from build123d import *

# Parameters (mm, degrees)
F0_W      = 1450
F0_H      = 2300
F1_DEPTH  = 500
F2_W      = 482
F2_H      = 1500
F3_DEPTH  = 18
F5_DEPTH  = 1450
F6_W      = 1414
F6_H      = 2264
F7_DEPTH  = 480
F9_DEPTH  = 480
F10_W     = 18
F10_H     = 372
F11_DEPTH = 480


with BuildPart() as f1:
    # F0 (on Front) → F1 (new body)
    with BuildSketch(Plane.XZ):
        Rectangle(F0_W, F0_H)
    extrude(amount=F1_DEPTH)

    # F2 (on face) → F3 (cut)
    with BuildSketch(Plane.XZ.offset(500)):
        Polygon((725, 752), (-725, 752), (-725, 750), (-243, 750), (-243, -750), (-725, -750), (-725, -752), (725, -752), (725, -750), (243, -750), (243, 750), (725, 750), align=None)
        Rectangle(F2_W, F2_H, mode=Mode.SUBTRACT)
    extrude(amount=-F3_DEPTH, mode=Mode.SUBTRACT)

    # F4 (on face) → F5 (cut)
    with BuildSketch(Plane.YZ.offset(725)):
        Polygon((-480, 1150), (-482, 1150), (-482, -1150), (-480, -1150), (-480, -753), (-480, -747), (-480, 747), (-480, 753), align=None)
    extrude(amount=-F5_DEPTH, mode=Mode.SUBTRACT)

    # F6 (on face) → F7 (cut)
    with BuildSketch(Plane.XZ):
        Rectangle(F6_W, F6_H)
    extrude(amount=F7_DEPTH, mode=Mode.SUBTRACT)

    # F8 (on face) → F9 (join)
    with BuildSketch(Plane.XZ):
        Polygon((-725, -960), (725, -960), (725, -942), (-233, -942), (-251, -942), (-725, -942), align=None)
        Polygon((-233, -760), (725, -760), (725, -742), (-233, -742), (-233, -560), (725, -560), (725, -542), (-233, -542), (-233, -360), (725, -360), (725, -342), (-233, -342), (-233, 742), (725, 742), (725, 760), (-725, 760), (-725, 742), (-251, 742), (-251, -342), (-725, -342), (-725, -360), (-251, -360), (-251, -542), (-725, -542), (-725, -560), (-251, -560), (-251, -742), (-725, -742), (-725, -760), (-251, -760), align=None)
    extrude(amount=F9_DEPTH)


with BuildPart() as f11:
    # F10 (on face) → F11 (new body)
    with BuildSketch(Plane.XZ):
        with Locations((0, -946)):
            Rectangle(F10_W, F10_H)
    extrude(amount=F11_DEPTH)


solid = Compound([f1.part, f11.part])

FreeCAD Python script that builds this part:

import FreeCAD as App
import Part
import Sketcher
from FreeCAD import Vector

doc = App.newDocument("Part")
params = doc.addObject("Spreadsheet::Sheet", "Params")
for row, (alias, value) in enumerate([
    ("sketch1_width", "1450 mm"),
    ("sketch1_height", "2300 mm"),
    ("pad1_length", "500 mm"),
    ("sketch2_width", "1450 mm"),
    ("sketch2_width2", "482 mm"),
    ("sketch2_height", "2 mm"),
    ("sketch2_height2", "1500 mm"),
    ("pocket1_length", "18 mm"),
    ("sketch3_width", "2 mm"),
    ("sketch3_height", "2300 mm"),
    ("pocket2_length", "1450 mm"),
    ("sketch4_width", "1414 mm"),
    ("sketch4_height", "2264 mm"),
    ("pocket3_length", "480 mm"),
    ("sketch5_width", "1450 mm"),
    ("sketch5_width2", "958 mm"),
    ("sketch5_width3", "474 mm"),
    ("sketch5_height", "18 mm"),
    ("sketch5_height2", "182 mm"),
    ("pad2_length", "480 mm"),
    ("sketch6_width", "18 mm"),
    ("sketch6_height", "372 mm"),
    ("pad3_length", "480 mm"),
], start=1):
    params.set(f"A{row}", alias)
    params.set(f"B{row}", "=" + value)
    params.setAlias(f"B{row}", alias)

body = doc.addObject("PartDesign::Body", "Body")
body.AllowCompound = True

# Sketch on XZ plane
sketch1 = body.newObject("Sketcher::SketchObject", "Sketch")
sketch1.AttachmentSupport = (doc.getObject("XZ_Plane"), [""])
sketch1.MapMode = "FlatFace"
sketch1.addGeometry([
    Part.LineSegment(Vector(-725, 1150, 0), Vector(-725, -1150, 0)),
    Part.LineSegment(Vector(-725, -1150, 0), Vector(725, -1150, 0)),
    Part.LineSegment(Vector(725, -1150, 0), Vector(725, 1150, 0)),
    Part.LineSegment(Vector(725, 1150, 0), Vector(-725, 1150, 0)),
], False)
sketch1.addConstraint([
    Sketcher.Constraint("Coincident", 0, 2, 1, 1),
    Sketcher.Constraint("Coincident", 1, 2, 2, 1),
    Sketcher.Constraint("Coincident", 2, 2, 3, 1),
    Sketcher.Constraint("Coincident", 3, 2, 0, 1),
    Sketcher.Constraint("Vertical", 0),
    Sketcher.Constraint("Horizontal", 1),
    Sketcher.Constraint("Vertical", 2),
    Sketcher.Constraint("Horizontal", 3),
    Sketcher.Constraint("Symmetric", 0, 2, 2, 2, -1, 1),
    Sketcher.Constraint("DistanceX", 1, 1, 1, 2, 1450.0),
    Sketcher.Constraint("DistanceY", 0, 2, 0, 1, 2300.0),
])
sketch1.setExpression("Constraints[9]", "Params.sketch1_width")
sketch1.setExpression("Constraints[10]", "Params.sketch1_height")
pad1 = body.newObject("PartDesign::Pad", "Pad")
pad1.Profile = sketch1
pad1.setExpression("Length", "Params.pad1_length")

# Sketch on XZ plane
sketch2 = body.newObject("Sketcher::SketchObject", "Sketch001")
sketch2.AttachmentSupport = (doc.getObject("XZ_Plane"), [""])
sketch2.MapMode = "FlatFace"
sketch2.AttachmentOffset = App.Placement(Vector(0, 0, 500), App.Rotation())
sketch2.addGeometry([
    Part.LineSegment(Vector(725, 752, 0), Vector(-725, 752, 0)),  # 0
    Part.LineSegment(Vector(-725, 752, 0), Vector(-725, 750, 0)),  # 1
    Part.LineSegment(Vector(-725, 750, 0), Vector(-243, 750, 0)),  # 2
    Part.LineSegment(Vector(-243, 750, 0), Vector(-243, -750, 0)),  # 3
    Part.LineSegment(Vector(-243, -750, 0), Vector(-725, -750, 0)),  # 4
    Part.LineSegment(Vector(-725, -750, 0), Vector(-725, -752, 0)),  # 5
    Part.LineSegment(Vector(-725, -752, 0), Vector(725, -752, 0)),  # 6
    Part.LineSegment(Vector(725, -752, 0), Vector(725, -750, 0)),  # 7
    Part.LineSegment(Vector(725, -750, 0), Vector(243, -750, 0)),  # 8
    Part.LineSegment(Vector(243, -750, 0), Vector(243, 750, 0)),  # 9
    Part.LineSegment(Vector(243, 750, 0), Vector(725, 750, 0)),  # 10
    Part.LineSegment(Vector(725, 750, 0), Vector(725, 752, 0)),  # 11
    Part.LineSegment(Vector(241, -750, 0), Vector(-241, -750, 0)),  # 12
    Part.LineSegment(Vector(-241, -750, 0), Vector(-241, 750, 0)),  # 13
    Part.LineSegment(Vector(-241, 750, 0), Vector(241, 750, 0)),  # 14
    Part.LineSegment(Vector(241, 750, 0), Vector(241, -750, 0)),  # 15
], False)
sketch2.addConstraint([
    Sketcher.Constraint("Coincident", 0, 2, 1, 1),
    Sketcher.Constraint("Coincident", 1, 2, 2, 1),
    Sketcher.Constraint("Coincident", 2, 2, 3, 1),
    Sketcher.Constraint("Coincident", 3, 2, 4, 1),
    Sketcher.Constraint("Coincident", 4, 2, 5, 1),
    Sketcher.Constraint("Coincident", 5, 2, 6, 1),
    Sketcher.Constraint("Coincident", 6, 2, 7, 1),
    Sketcher.Constraint("Coincident", 7, 2, 8, 1),
    Sketcher.Constraint("Coincident", 8, 2, 9, 1),
    Sketcher.Constraint("Coincident", 9, 2, 10, 1),
    Sketcher.Constraint("Coincident", 10, 2, 11, 1),
    Sketcher.Constraint("Coincident", 11, 2, 0, 1),
    Sketcher.Constraint("Coincident", 12, 2, 13, 1),
    Sketcher.Constraint("Coincident", 13, 2, 14, 1),
    Sketcher.Constraint("Coincident", 14, 2, 15, 1),
    Sketcher.Constraint("Coincident", 15, 2, 12, 1),
    Sketcher.Constraint("Horizontal", 0),
    Sketcher.Constraint("Vertical", 1),
    Sketcher.Constraint("Horizontal", 2),
    Sketcher.Constraint("Vertical", 3),
    Sketcher.Constraint("Horizontal", 4),
    Sketcher.Constraint("Vertical", 5),
    Sketcher.Constraint("Horizontal", 6),
    Sketcher.Constraint("Vertical", 7),
    Sketcher.Constraint("Horizontal", 8),
    Sketcher.Constraint("Vertical", 9),
    Sketcher.Constraint("Horizontal", 10),
    Sketcher.Constraint("Vertical", 11),
    Sketcher.Constraint("Horizontal", 12),
    Sketcher.Constraint("Vertical", 13),
    Sketcher.Constraint("Horizontal", 14),
    Sketcher.Constraint("Vertical", 15),
    Sketcher.Constraint("Symmetric", 0, 2, 6, 2, -1, 1),
    Sketcher.Constraint("Symmetric", 2, 2, 8, 2, -1, 1),
    Sketcher.Constraint("Symmetric", 4, 2, 10, 2, -1, 1),
    Sketcher.Constraint("Symmetric", 12, 2, 14, 2, -1, 1),
    Sketcher.Constraint("Symmetric", 4, 2, 7, 2, -2),
    Sketcher.Constraint("Horizontal", 8, 2, 12, 2),
    Sketcher.Constraint("Equal", 10, 12),
    Sketcher.Constraint("DistanceX", 0, 2, 0, 1, 1450.0),
    Sketcher.Constraint("DistanceX", 2, 1, 2, 2, 482.0),
    Sketcher.Constraint("DistanceY", 1, 2, 1, 1, 2.0),
    Sketcher.Constraint("DistanceY", 3, 2, 3, 1, 1500.0),
])
sketch2.setExpression("Constraints[39]", "Params.sketch2_width")
sketch2.setExpression("Constraints[40]", "Params.sketch2_width2")
sketch2.setExpression("Constraints[41]", "Params.sketch2_height")
sketch2.setExpression("Constraints[42]", "Params.sketch2_height2")
pocket1 = body.newObject("PartDesign::Pocket", "Pocket")
pocket1.Profile = sketch2
pocket1.setExpression("Length", "Params.pocket1_length")

# Sketch on YZ plane
sketch3 = body.newObject("Sketcher::SketchObject", "Sketch002")
sketch3.AttachmentSupport = (doc.getObject("YZ_Plane"), [""])
sketch3.MapMode = "FlatFace"
sketch3.AttachmentOffset = App.Placement(Vector(0, 0, 725), App.Rotation())
sketch3.addGeometry([
    Part.LineSegment(Vector(-480, 1150, 0), Vector(-482, 1150, 0)),
    Part.LineSegment(Vector(-482, 1150, 0), Vector(-482, -1150, 0)),
    Part.LineSegment(Vector(-482, -1150, 0), Vector(-480, -1150, 0)),
    Part.LineSegment(Vector(-480, -1150, 0), Vector(-480, 1150, 0)),
], False)
sketch3.addConstraint([
    Sketcher.Constraint("Coincident", 0, 2, 1, 1),
    Sketcher.Constraint("Coincident", 1, 2, 2, 1),
    Sketcher.Constraint("Coincident", 2, 2, 3, 1),
    Sketcher.Constraint("Coincident", 3, 2, 0, 1),
    Sketcher.Constraint("Horizontal", 0),
    Sketcher.Constraint("Vertical", 1),
    Sketcher.Constraint("Horizontal", 2),
    Sketcher.Constraint("Vertical", 3),
    Sketcher.Constraint("DistanceX", 0, 2, 0, 1, 2.0),
    Sketcher.Constraint("DistanceY", 1, 2, 1, 1, 2300.0),
    Sketcher.Constraint("DistanceX", 0, 2, -1, 1, 482.0),
    Sketcher.Constraint("DistanceY", -1, 1, 0, 2, 1150.0),
])
sketch3.setExpression("Constraints[8]", "Params.sketch3_width")
sketch3.setExpression("Constraints[9]", "Params.sketch3_height")
pocket2 = body.newObject("PartDesign::Pocket", "Pocket001")
pocket2.Profile = sketch3
pocket2.setExpression("Length", "Params.pocket2_length")

# Sketch on XZ plane
sketch4 = body.newObject("Sketcher::SketchObject", "Sketch003")
sketch4.AttachmentSupport = (doc.getObject("XZ_Plane"), [""])
sketch4.MapMode = "FlatFace"
sketch4.addGeometry([
    Part.LineSegment(Vector(-707, 1132, 0), Vector(-707, -1132, 0)),
    Part.LineSegment(Vector(-707, -1132, 0), Vector(707, -1132, 0)),
    Part.LineSegment(Vector(707, -1132, 0), Vector(707, 1132, 0)),
    Part.LineSegment(Vector(707, 1132, 0), Vector(-707, 1132, 0)),
], False)
sketch4.addConstraint([
    Sketcher.Constraint("Coincident", 0, 2, 1, 1),
    Sketcher.Constraint("Coincident", 1, 2, 2, 1),
    Sketcher.Constraint("Coincident", 2, 2, 3, 1),
    Sketcher.Constraint("Coincident", 3, 2, 0, 1),
    Sketcher.Constraint("Vertical", 0),
    Sketcher.Constraint("Horizontal", 1),
    Sketcher.Constraint("Vertical", 2),
    Sketcher.Constraint("Horizontal", 3),
    Sketcher.Constraint("Symmetric", 0, 2, 2, 2, -1, 1),
    Sketcher.Constraint("DistanceX", 1, 1, 1, 2, 1414.0),
    Sketcher.Constraint("DistanceY", 0, 2, 0, 1, 2264.0),
])
sketch4.setExpression("Constraints[9]", "Params.sketch4_width")
sketch4.setExpression("Constraints[10]", "Params.sketch4_height")
pocket3 = body.newObject("PartDesign::Pocket", "Pocket002")
pocket3.Profile = sketch4
pocket3.setExpression("Length", "Params.pocket3_length")
pocket3.Reversed = True

# Sketch on XZ plane
sketch5 = body.newObject("Sketcher::SketchObject", "Sketch004")
sketch5.AttachmentSupport = (doc.getObject("XZ_Plane"), [""])
sketch5.MapMode = "FlatFace"
sketch5.addGeometry([
    Part.LineSegment(Vector(-725, -960, 0), Vector(725, -960, 0)),  # 0
    Part.LineSegment(Vector(725, -960, 0), Vector(725, -942, 0)),  # 1
    Part.LineSegment(Vector(725, -942, 0), Vector(-725, -942, 0)),  # 2
    Part.LineSegment(Vector(-725, -942, 0), Vector(-725, -960, 0)),  # 3
    Part.LineSegment(Vector(725, -760, 0), Vector(725, -742, 0)),  # 4
    Part.LineSegment(Vector(725, -742, 0), Vector(-233, -742, 0)),  # 5
    Part.LineSegment(Vector(-233, -742, 0), Vector(-233, -560, 0)),  # 6
    Part.LineSegment(Vector(-233, -560, 0), Vector(725, -560, 0)),  # 7
    Part.LineSegment(Vector(725, -560, 0), Vector(725, -542, 0)),  # 8
    Part.LineSegment(Vector(725, -542, 0), Vector(-233, -542, 0)),  # 9
    Part.LineSegment(Vector(-233, -542, 0), Vector(-233, -360, 0)),  # 10
    Part.LineSegment(Vector(-233, -360, 0), Vector(725, -360, 0)),  # 11
    Part.LineSegment(Vector(725, -360, 0), Vector(725, -342, 0)),  # 12
    Part.LineSegment(Vector(725, -342, 0), Vector(-233, -342, 0)),  # 13
    Part.LineSegment(Vector(-233, -342, 0), Vector(-233, 742, 0)),  # 14
    Part.LineSegment(Vector(-233, 742, 0), Vector(725, 742, 0)),  # 15
    Part.LineSegment(Vector(725, 742, 0), Vector(725, 760, 0)),  # 16
    Part.LineSegment(Vector(725, 760, 0), Vector(-725, 760, 0)),  # 17
    Part.LineSegment(Vector(-725, 760, 0), Vector(-725, 742, 0)),  # 18
    Part.LineSegment(Vector(-725, 742, 0), Vector(-251, 742, 0)),  # 19
    Part.LineSegment(Vector(-251, 742, 0), Vector(-251, -342, 0)),  # 20
    Part.LineSegment(Vector(-251, -342, 0), Vector(-725, -342, 0)),  # 21
    Part.LineSegment(Vector(-725, -342, 0), Vector(-725, -360, 0)),  # 22
    Part.LineSegment(Vector(-725, -360, 0), Vector(-251, -360, 0)),  # 23
    Part.LineSegment(Vector(-251, -360, 0), Vector(-251, -542, 0)),  # 24
    Part.LineSegment(Vector(-251, -542, 0), Vector(-725, -542, 0)),  # 25
    Part.LineSegment(Vector(-725, -542, 0), Vector(-725, -560, 0)),  # 26
    Part.LineSegment(Vector(-725, -560, 0), Vector(-251, -560, 0)),  # 27
    Part.LineSegment(Vector(-251, -560, 0), Vector(-251, -742, 0)),  # 28
    Part.LineSegment(Vector(-251, -742, 0), Vector(-725, -742, 0)),  # 29
    Part.LineSegment(Vector(-725, -742, 0), Vector(-725, -760, 0)),  # 30
    Part.LineSegment(Vector(-725, -760, 0), Vector(725, -760, 0)),  # 31
], False)
sketch5.addConstraint([
    Sketcher.Constraint("Coincident", 0, 2, 1, 1),
    Sketcher.Constraint("Coincident", 1, 2, 2, 1),
    Sketcher.Constraint("Coincident", 2, 2, 3, 1),
    Sketcher.Constraint("Coincident", 3, 2, 0, 1),
    Sketcher.Constraint("Coincident", 4, 2, 5, 1),
    Sketcher.Constraint("Coincident", 5, 2, 6, 1),
    Sketcher.Constraint("Coincident", 6, 2, 7, 1),
    Sketcher.Constraint("Coincident", 7, 2, 8, 1),
    Sketcher.Constraint("Coincident", 8, 2, 9, 1),
    Sketcher.Constraint("Coincident", 9, 2, 10, 1),
    Sketcher.Constraint("Coincident", 10, 2, 11, 1),
    Sketcher.Constraint("Coincident", 11, 2, 12, 1),
    Sketcher.Constraint("Coincident", 12, 2, 13, 1),
    Sketcher.Constraint("Coincident", 13, 2, 14, 1),
    Sketcher.Constraint("Coincident", 14, 2, 15, 1),
    Sketcher.Constraint("Coincident", 15, 2, 16, 1),
    Sketcher.Constraint("Coincident", 16, 2, 17, 1),
    Sketcher.Constraint("Coincident", 17, 2, 18, 1),
    Sketcher.Constraint("Coincident", 18, 2, 19, 1),
    Sketcher.Constraint("Coincident", 19, 2, 20, 1),
    Sketcher.Constraint("Coincident", 20, 2, 21, 1),
    Sketcher.Constraint("Coincident", 21, 2, 22, 1),
    Sketcher.Constraint("Coincident", 22, 2, 23, 1),
    Sketcher.Constraint("Coincident", 23, 2, 24, 1),
    Sketcher.Constraint("Coincident", 24, 2, 25, 1),
    Sketcher.Constraint("Coincident", 25, 2, 26, 1),
    Sketcher.Constraint("Coincident", 26, 2, 27, 1),
    Sketcher.Constraint("Coincident", 27, 2, 28, 1),
    Sketcher.Constraint("Coincident", 28, 2, 29, 1),
    Sketcher.Constraint("Coincident", 29, 2, 30, 1),
    Sketcher.Constraint("Coincident", 30, 2, 31, 1),
    Sketcher.Constraint("Coincident", 31, 2, 4, 1),
    Sketcher.Constraint("Horizontal", 0),
    Sketcher.Constraint("Vertical", 1),
    Sketcher.Constraint("Horizontal", 2),
    Sketcher.Constraint("Vertical", 3),
    Sketcher.Constraint("Vertical", 4),
    Sketcher.Constraint("Horizontal", 5),
    Sketcher.Constraint("Vertical", 6),
    Sketcher.Constraint("Horizontal", 7),
    Sketcher.Constraint("Vertical", 8),
    Sketcher.Constraint("Horizontal", 9),
    Sketcher.Constraint("Vertical", 10),
    Sketcher.Constraint("Horizontal", 11),
    Sketcher.Constraint("Vertical", 12),
    Sketcher.Constraint("Horizontal", 13),
    Sketcher.Constraint("Vertical", 14),
    Sketcher.Constraint("Horizontal", 15),
    Sketcher.Constraint("Vertical", 16),
    Sketcher.Constraint("Horizontal", 17),
    Sketcher.Constraint("Vertical", 18),
    Sketcher.Constraint("Horizontal", 19),
    Sketcher.Constraint("Vertical", 20),
    Sketcher.Constraint("Horizontal", 21),
    Sketcher.Constraint("Vertical", 22),
    Sketcher.Constraint("Horizontal", 23),
    Sketcher.Constraint("Vertical", 24),
    Sketcher.Constraint("Horizontal", 25),
    Sketcher.Constraint("Vertical", 26),
    Sketcher.Constraint("Horizontal", 27),
    Sketcher.Constraint("Vertical", 28),
    Sketcher.Constraint("Horizontal", 29),
    Sketcher.Constraint("Vertical", 30),
    Sketcher.Constraint("Horizontal", 31),
    Sketcher.Constraint("Symmetric", 4, 2, 18, 2, -1, 1),
    Sketcher.Constraint("Symmetric", 15, 2, 29, 2, -1, 1),
    Sketcher.Constraint("Symmetric", 15, 2, 18, 2, -2),
    Sketcher.Constraint("Symmetric", 12, 2, 21, 2, -2),
    Sketcher.Constraint("Symmetric", 8, 2, 25, 2, -2),
    Sketcher.Constraint("Horizontal", 11, 2, 22, 2),
    Sketcher.Constraint("Horizontal", 7, 2, 26, 2),
    Sketcher.Constraint("Vertical", 1, 2, 4, 2),
    Sketcher.Constraint("Vertical", 4, 2, 7, 2),
    Sketcher.Constraint("Vertical", 6, 2, 9, 2),
    Sketcher.Constraint("Vertical", 8, 2, 11, 2),
    Sketcher.Constraint("Vertical", 10, 2, 13, 2),
    Sketcher.Constraint("Vertical", 3, 2, 17, 2),
    Sketcher.Constraint("Vertical", 20, 2, 23, 2),
    Sketcher.Constraint("Vertical", 24, 2, 27, 2),
    Sketcher.Constraint("Equal", 3, 4),
    Sketcher.Constraint("Equal", 4, 8),
    Sketcher.Constraint("Equal", 6, 10),
    Sketcher.Constraint("Equal", 8, 12),
    Sketcher.Constraint("Equal", 12, 16),
    Sketcher.Constraint("DistanceX", 0, 1, 0, 2, 1450.0),
    Sketcher.Constraint("DistanceX", 5, 2, 5, 1, 958.0),
    Sketcher.Constraint("DistanceX", 19, 1, 19, 2, 474.0),
    Sketcher.Constraint("DistanceY", 1, 1, 1, 2, 18.0),
    Sketcher.Constraint("DistanceY", 6, 1, 6, 2, 182.0),
    Sketcher.Constraint("DistanceY", 14, 1, 14, 2, 1084.0),
    Sketcher.Constraint("DistanceY", 0, 2, -1, 1, 960.0),
])
sketch5.setExpression("Constraints[84]", "Params.sketch5_width")
sketch5.setExpression("Constraints[85]", "Params.sketch5_width2")
sketch5.setExpression("Constraints[86]", "Params.sketch5_width3")
sketch5.setExpression("Constraints[87]", "Params.sketch5_height")
sketch5.setExpression("Constraints[88]", "Params.sketch5_height2")
pad2 = body.newObject("PartDesign::Pad", "Pad001")
pad2.Profile = sketch5
pad2.setExpression("Length", "Params.pad2_length")
body2 = doc.addObject("PartDesign::Body", "Body001")

# Sketch on XZ plane
sketch6 = body2.newObject("Sketcher::SketchObject", "Sketch005")
sketch6.AttachmentSupport = (doc.getObject("XZ_Plane001"), [""])
sketch6.MapMode = "FlatFace"
sketch6.addGeometry([
    Part.LineSegment(Vector(-9, -760, 0), Vector(-9, -1132, 0)),
    Part.LineSegment(Vector(-9, -1132, 0), Vector(9, -1132, 0)),
    Part.LineSegment(Vector(9, -1132, 0), Vector(9, -760, 0)),
    Part.LineSegment(Vector(9, -760, 0), Vector(-9, -760, 0)),
], False)
sketch6.addConstraint([
    Sketcher.Constraint("Coincident", 0, 2, 1, 1),
    Sketcher.Constraint("Coincident", 1, 2, 2, 1),
    Sketcher.Constraint("Coincident", 2, 2, 3, 1),
    Sketcher.Constraint("Coincident", 3, 2, 0, 1),
    Sketcher.Constraint("Vertical", 0),
    Sketcher.Constraint("Horizontal", 1),
    Sketcher.Constraint("Vertical", 2),
    Sketcher.Constraint("Horizontal", 3),
    Sketcher.Constraint("DistanceX", 1, 1, 1, 2, 18.0),
    Sketcher.Constraint("DistanceY", 0, 2, 0, 1, 372.0),
    Sketcher.Constraint("DistanceX", 0, 2, -1, 1, 9.0),
    Sketcher.Constraint("DistanceY", 0, 2, -1, 1, 1132.0),
])
sketch6.setExpression("Constraints[8]", "Params.sketch6_width")
sketch6.setExpression("Constraints[9]", "Params.sketch6_height")
pad3 = body2.newObject("PartDesign::Pad", "Pad002")
pad3.Profile = sketch6
pad3.setExpression("Length", "Params.pad3_length")

doc.recompute()
